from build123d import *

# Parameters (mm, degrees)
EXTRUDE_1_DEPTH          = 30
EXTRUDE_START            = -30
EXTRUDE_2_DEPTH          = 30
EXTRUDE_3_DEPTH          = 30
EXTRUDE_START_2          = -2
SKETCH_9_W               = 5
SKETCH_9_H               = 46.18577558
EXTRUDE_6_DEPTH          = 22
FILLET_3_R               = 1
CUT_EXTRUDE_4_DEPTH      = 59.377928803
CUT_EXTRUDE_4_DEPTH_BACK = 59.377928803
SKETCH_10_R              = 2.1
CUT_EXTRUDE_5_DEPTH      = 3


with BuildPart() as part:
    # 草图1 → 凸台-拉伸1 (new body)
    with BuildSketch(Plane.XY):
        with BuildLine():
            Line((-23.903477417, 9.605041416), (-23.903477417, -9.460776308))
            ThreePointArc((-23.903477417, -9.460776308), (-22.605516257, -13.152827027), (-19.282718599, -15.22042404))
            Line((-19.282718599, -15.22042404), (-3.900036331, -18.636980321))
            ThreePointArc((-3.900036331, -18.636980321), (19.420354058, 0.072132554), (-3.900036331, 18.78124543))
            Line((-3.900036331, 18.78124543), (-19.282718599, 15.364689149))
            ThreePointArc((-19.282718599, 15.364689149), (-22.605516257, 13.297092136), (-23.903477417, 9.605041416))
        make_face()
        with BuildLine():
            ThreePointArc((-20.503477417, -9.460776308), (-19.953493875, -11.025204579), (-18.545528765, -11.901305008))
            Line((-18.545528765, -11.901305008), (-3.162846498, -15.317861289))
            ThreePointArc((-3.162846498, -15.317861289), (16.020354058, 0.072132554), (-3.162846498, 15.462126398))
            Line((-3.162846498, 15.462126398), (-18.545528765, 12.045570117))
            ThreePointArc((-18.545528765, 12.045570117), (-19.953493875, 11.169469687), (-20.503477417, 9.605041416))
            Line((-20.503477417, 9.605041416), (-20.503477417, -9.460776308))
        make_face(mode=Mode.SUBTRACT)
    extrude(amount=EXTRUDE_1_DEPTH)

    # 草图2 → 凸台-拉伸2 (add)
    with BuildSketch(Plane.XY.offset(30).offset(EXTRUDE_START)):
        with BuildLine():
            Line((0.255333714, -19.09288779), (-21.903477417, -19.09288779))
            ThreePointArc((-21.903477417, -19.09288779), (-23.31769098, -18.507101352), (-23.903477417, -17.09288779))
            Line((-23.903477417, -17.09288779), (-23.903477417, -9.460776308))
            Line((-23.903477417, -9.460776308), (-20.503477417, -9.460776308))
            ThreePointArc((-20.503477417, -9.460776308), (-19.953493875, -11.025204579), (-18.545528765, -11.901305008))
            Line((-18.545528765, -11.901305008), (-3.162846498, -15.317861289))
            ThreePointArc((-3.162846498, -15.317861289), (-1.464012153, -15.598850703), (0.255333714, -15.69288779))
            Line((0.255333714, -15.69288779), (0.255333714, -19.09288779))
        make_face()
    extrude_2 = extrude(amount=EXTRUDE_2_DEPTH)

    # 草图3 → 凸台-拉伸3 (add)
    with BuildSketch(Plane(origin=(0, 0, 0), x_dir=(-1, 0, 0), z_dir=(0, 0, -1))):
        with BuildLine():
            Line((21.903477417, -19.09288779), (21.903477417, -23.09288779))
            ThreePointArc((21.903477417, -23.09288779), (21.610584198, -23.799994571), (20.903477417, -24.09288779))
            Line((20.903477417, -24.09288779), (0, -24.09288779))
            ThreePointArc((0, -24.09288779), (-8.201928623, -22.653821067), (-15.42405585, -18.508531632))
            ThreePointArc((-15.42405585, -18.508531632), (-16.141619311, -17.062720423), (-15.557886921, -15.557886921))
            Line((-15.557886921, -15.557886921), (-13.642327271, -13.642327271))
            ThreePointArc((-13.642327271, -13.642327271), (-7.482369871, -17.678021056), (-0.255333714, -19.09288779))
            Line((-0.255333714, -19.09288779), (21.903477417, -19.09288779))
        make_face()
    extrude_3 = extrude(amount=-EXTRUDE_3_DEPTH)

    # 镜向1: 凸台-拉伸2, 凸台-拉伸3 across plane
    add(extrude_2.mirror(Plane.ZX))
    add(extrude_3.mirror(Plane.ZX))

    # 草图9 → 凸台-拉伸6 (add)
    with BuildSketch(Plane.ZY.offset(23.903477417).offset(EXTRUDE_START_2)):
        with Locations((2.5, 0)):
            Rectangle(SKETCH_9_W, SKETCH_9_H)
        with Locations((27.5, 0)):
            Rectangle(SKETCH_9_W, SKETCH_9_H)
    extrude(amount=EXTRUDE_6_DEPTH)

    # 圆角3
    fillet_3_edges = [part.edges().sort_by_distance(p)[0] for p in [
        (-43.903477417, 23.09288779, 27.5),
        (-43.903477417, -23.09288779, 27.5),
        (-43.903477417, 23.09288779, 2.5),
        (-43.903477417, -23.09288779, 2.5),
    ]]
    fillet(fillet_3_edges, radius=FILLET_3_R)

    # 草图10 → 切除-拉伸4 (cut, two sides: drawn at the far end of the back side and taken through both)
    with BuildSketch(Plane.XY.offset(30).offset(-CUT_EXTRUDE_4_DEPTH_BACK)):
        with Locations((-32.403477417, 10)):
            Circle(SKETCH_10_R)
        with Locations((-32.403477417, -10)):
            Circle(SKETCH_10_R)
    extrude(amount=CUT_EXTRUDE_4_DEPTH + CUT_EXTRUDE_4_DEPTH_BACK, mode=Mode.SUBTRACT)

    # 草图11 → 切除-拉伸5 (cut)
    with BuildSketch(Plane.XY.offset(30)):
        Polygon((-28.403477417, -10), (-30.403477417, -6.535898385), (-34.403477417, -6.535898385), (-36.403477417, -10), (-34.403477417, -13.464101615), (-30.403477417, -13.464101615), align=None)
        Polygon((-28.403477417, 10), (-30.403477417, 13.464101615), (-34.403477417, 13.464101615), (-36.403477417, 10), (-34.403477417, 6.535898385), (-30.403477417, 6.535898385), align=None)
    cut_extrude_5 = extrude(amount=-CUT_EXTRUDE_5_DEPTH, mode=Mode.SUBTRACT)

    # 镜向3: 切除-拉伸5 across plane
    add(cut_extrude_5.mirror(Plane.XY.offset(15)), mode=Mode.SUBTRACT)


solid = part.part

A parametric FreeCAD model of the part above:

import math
import FreeCAD as App
import Part
import Sketcher
from FreeCAD import Vector
Q = App.Units.Quantity


def edges_at(feature, points):
    """Names of the edges that pass closest to the given points."""
    edges = feature.Shape.Edges
    near = lambda p: min(range(len(edges)), key=lambda i: edges[i].distToShape(Part.Vertex(*p))[0])
    return sorted({f"Edge{near(p) + 1}" for p in points})

doc = App.newDocument("Part")
body = doc.addObject("PartDesign::Body", "Body")

# Sketch on XY plane
sketch1 = body.newObject("Sketcher::SketchObject", "Sketch")
sketch1.AttachmentSupport = (doc.getObject("XY_Plane"), [""])
sketch1.MapMode = "FlatFace"
sketch1.addGeometry(Part.LineSegment(Vector(-23.9, 9.6, 0), Vector(-23.9, -9.5, 0)), False)
sketch1.addGeometry(Part.ArcOfCircle(Part.Circle(Vector(-18, -9.5, 0), Vector(0, 0, 1), 5.9), math.radians(-180), math.radians(-103)), False)
sketch1.addGeometry(Part.LineSegment(Vector(-19.3, -15.2, 0), Vector(-3.9, -18.6, 0)), False)
sketch1.addGeometry(Part.ArcOfCircle(Part.Circle(Vector(0.3, 0.1, 0), Vector(0, 0, 1), 19.2), math.radians(-103), math.radians(103)), False)
sketch1.addGeometry(Part.LineSegment(Vector(-3.9, 18.8, 0), Vector(-19.3, 15.4, 0)), False)
sketch1.addGeometry(Part.ArcOfCircle(Part.Circle(Vector(-18, 9.6, 0), Vector(0, 0, 1), 5.9), math.radians(103), math.radians(180)), False)
sketch1.addGeometry(Part.ArcOfCircle(Part.Circle(Vector(-18, -9.5, 0), Vector(0, 0, 1), 2.5), math.radians(180), math.radians(257)), False)
sketch1.addGeometry(Part.LineSegment(Vector(-20.5, -9.5, 0), Vector(-20.5, 9.6, 0)), False)
sketch1.addGeometry(Part.ArcOfCircle(Part.Circle(Vector(-18, 9.6, 0), Vector(0, 0, 1), 2.5), math.radians(103), math.radians(180)), False)
sketch1.addGeometry(Part.LineSegment(Vector(-18.5, 12, 0), Vector(-3.2, 15.5, 0)), False)
sketch1.addGeometry(Part.ArcOfCircle(Part.Circle(Vector(0.3, 0.1, 0), Vector(0, 0, 1), 15.8), math.radians(-103), math.radians(103)), False)
sketch1.addGeometry(Part.LineSegment(Vector(-3.2, -15.3, 0), Vector(-18.5, -11.9, 0)), False)
sketch1.addConstraint(Sketcher.Constraint("Tangent", 0, 2, 1, 1))
sketch1.addConstraint(Sketcher.Constraint("Tangent", 1, 2, 2, 1))
sketch1.addConstraint(Sketcher.Constraint("Tangent", 2, 2, 3, 1))
sketch1.addConstraint(Sketcher.Constraint("Tangent", 3, 2, 4, 1))
sketch1.addConstraint(Sketcher.Constraint("Tangent", 4, 2, 5, 1))
sketch1.addConstraint(Sketcher.Constraint("Tangent", 5, 2, 0, 1))
sketch1.addConstraint(Sketcher.Constraint("Tangent", 6, 1, 7, 1))
sketch1.addConstraint(Sketcher.Constraint("Tangent", 7, 2, 8, 2))
sketch1.addConstraint(Sketcher.Constraint("Tangent", 8, 1, 9, 1))
sketch1.addConstraint(Sketcher.Constraint("Tangent", 9, 2, 10, 2))
sketch1.addConstraint(Sketcher.Constraint("Tangent", 10, 1, 11, 1))
sketch1.addConstraint(Sketcher.Constraint("Tangent", 11, 2, 6, 2))
sketch1.addConstraint(Sketcher.Constraint("Vertical", 0))
sketch1.addConstraint(Sketcher.Constraint("Vertical", 7))
sketch1.addConstraint(Sketcher.Constraint("Coincident", 6, 3, 1, 3))
sketch1.addConstraint(Sketcher.Constraint("Coincident", 8, 3, 5, 3))
sketch1.addConstraint(Sketcher.Constraint("Coincident", 10, 3, 3, 3))
sketch1.addConstraint(Sketcher.Constraint("Equal", 1, 5))
sketch1.addConstraint(Sketcher.Constraint("Parallel", 4, 9))
sketch1.addConstraint(Sketcher.Constraint("Vertical", 2, 2, 3, 2))
sketch1.addConstraint(Sketcher.Constraint("Radius", 1, 5.9))
sketch1.addConstraint(Sketcher.Constraint("Radius", 6, 2.5))
sketch1.addConstraint(Sketcher.Constraint("Radius", 3, 19.16502))
sketch1.addConstraint(Sketcher.Constraint("Distance", 2, 15.757531))
sketch1.addConstraint(Sketcher.Constraint("DistanceY", 0, 2, 0, 1, 19.065818))
sketch1.addConstraint(Sketcher.Constraint("DistanceY", -1, 1, 5, 3, 9.605041))
sketch1.addConstraint(Sketcher.Constraint("DistanceX", 1, 2, -1, 1, 19.282719))
pad1 = body.newObject("PartDesign::Pad", "Pad")
pad1.Profile = sketch1
pad1.Length = 30

# Sketch on XY plane
sketch2 = body.newObject("Sketcher::SketchObject", "Sketch001")
sketch2.AttachmentSupport = (doc.getObject("XY_Plane"), [""])
sketch2.MapMode = "FlatFace"
sketch2.addGeometry(Part.LineSegment(Vector(-21.9, -19.1, 0), Vector(0.3, -19.1, 0)), False)
sketch2.addGeometry(Part.LineSegment(Vector(0.3, -19.1, 0), Vector(0.3, -15.7, 0)), False)
sketch2.addGeometry(Part.ArcOfCircle(Part.Circle(Vector(0.3, 0.1, 0), Vector(0, 0, 1), 15.8), math.radians(-102.52), math.radians(-90)), False)
sketch2.addGeometry(Part.LineSegment(Vector(-3.2, -15.3, 0), Vector(-18.5, -11.9, 0)), False)
sketch2.addGeometry(Part.ArcOfCircle(Part.Circle(Vector(-18, -9.5, 0), Vector(0, 0, 1), 2.5), math.radians(180), math.radians(257)), False)
sketch2.addGeometry(Part.LineSegment(Vector(-20.5, -9.5, 0), Vector(-23.9, -9.5, 0)), False)
sketch2.addGeometry(Part.LineSegment(Vector(-23.9, -9.5, 0), Vector(-23.9, -17.1, 0)), False)
sketch2.addGeometry(Part.ArcOfCircle(Part.Circle(Vector(-21.9, -17.1, 0), Vector(0, 0, 1), 2), math.radians(180), math.radians(270)), False)
sketch2.addConstraint(Sketcher.Constraint("Coincident", 0, 2, 1, 1))
sketch2.addConstraint(Sketcher.Constraint("Coincident", 1, 2, 2, 2))
sketch2.addConstraint(Sketcher.Constraint("Tangent", 2, 1, 3, 1))
sketch2.addConstraint(Sketcher.Constraint("Tangent", 3, 2, 4, 2))
sketch2.addConstraint(Sketcher.Constraint("Coincident", 4, 1, 5, 1))
sketch2.addConstraint(Sketcher.Constraint("Coincident", 5, 2, 6, 1))
sketch2.addConstraint(Sketcher.Constraint("Tangent", 6, 2, 7, 1))
sketch2.addConstraint(Sketcher.Constraint("Tangent", 7, 2, 0, 1))
sketch2.addConstraint(Sketcher.Constraint("Horizontal", 0))
sketch2.addConstraint(Sketcher.Constraint("Vertical", 1))
sketch2.addConstraint(Sketcher.Constraint("Horizontal", 5))
sketch2.addConstraint(Sketcher.Constraint("Vertical", 6))
sketch2.addConstraint(Sketcher.Constraint("Vertical", 2, 3, 0, 2))
sketch2.addConstraint(Sketcher.Constraint("Equal", 5, 1))
sketch2.addConstraint(Sketcher.Constraint("Radius", 7, 2.0))
sketch2.addConstraint(Sketcher.Constraint("Radius", 4, 2.5))
sketch2.addConstraint(Sketcher.Constraint("DistanceX", 5, 2, 5, 1, 3.4))
sketch2.addConstraint(Sketcher.Constraint("Radius", 2, 15.76502))
sketch2.addConstraint(Sketcher.Constraint("DistanceX", 0, 1, 0, 2, 22.158811))
sketch2.addConstraint(Sketcher.Constraint("DistanceY", 6, 2, 6, 1, 7.632111))
sketch2.addConstraint(Sketcher.Constraint("Distance", 3, 15.757531))
sketch2.addConstraint(Sketcher.Constraint("DistanceY", 2, 1, -1, 1, 15.317861))
sketch2.addConstraint(Sketcher.Constraint("DistanceX", 3, 2, -1, 1, 18.545529))
pad2 = body.newObject("PartDesign::Pad", "Pad001")
pad2.Profile = sketch2
pad2.Length = 30

# Sketch on XY plane
sketch3 = body.newObject("Sketcher::SketchObject", "Sketch002")
sketch3.AttachmentSupport = (doc.getObject("XY_Plane"), [""])
sketch3.MapMode = "FlatFace"
sketch3.addGeometry(Part.LineSegment(Vector(-21.9, -23.1, 0), Vector(-21.9, -19.1, 0)), False)
sketch3.addGeometry(Part.LineSegment(Vector(-21.9, -19.1, 0), Vector(0.3, -19.1, 0)), False)
sketch3.addGeometry(Part.ArcOfCircle(Part.Circle(Vector(0.3, 0.1, 0), Vector(0, 0, 1), 19.2), math.radians(-90), math.radians(-46)), False)
sketch3.addGeometry(Part.LineSegment(Vector(13.6, -13.6, 0), Vector(15.6, -15.6, 0)), False)
sketch3.addGeometry(Part.ArcOfCircle(Part.Circle(Vector(14.1, -17, 0), Vector(0, 0, 1), 2), math.radians(-50), math.radians(45)), False)
sketch3.addGeometry(Part.ArcOfCircle(Part.Circle(Vector(0, 0, 0), Vector(0, 0, 1), 24.1), math.radians(-90), math.radians(-50)), False)
sketch3.addGeometry(Part.LineSegment(Vector(0, -24.1, 0), Vector(-20.9, -24.1, 0)), False)
sketch3.addGeometry(Part.ArcOfCircle(Part.Circle(Vector(-20.9, -23.1, 0), Vector(0, 0, 1), 1), math.radians(-180), math.radians(-90)), False)
sketch3.addConstraint(Sketcher.Constraint("Coincident", 0, 2, 1, 1))
sketch3.addConstraint(Sketcher.Constraint("Tangent", 1, 2, 2, 1))
sketch3.addConstraint(Sketcher.Constraint("Coincident", 2, 2, 3, 1))
sketch3.addConstraint(Sketcher.Constraint("Tangent", 3, 2, 4, 2))
sketch3.addConstraint(Sketcher.Constraint("Tangent", 4, 1, 5, 2))
sketch3.addConstraint(Sketcher.Constraint("Tangent", 5, 1, 6, 1))
sketch3.addConstraint(Sketcher.Constraint("Tangent", 6, 2, 7, 2))
sketch3.addConstraint(Sketcher.Constraint("Tangent", 7, 1, 0, 1))
sketch3.addConstraint(Sketcher.Constraint("Vertical", 0))
sketch3.addConstraint(Sketcher.Constraint("Horizontal", 1))
sketch3.addConstraint(Sketcher.Constraint("Horizontal", 6))
sketch3.addConstraint(Sketcher.Constraint("Coincident", 5, 3, -1, 1))
sketch3.addConstraint(Sketcher.Constraint("Radius", 4, 2.0))
sketch3.addConstraint(Sketcher.Constraint("Radius", 7, 1.0))
sketch3.addConstraint(Sketcher.Constraint("DistanceY", 0, 1, 0, 2, 4.0))
sketch3.addConstraint(Sketcher.Constraint("Angle", 3, Q("-45 deg")))
sketch3.addConstraint(Sketcher.Constraint("Radius", 2, 19.16502))
sketch3.addConstraint(Sketcher.Constraint("Radius", 5, 24.092888))
sketch3.addConstraint(Sketcher.Constraint("DistanceY", 1, 2, 3, 2, 3.535001))
sketch3.addConstraint(Sketcher.Constraint("DistanceX", 1, 1, 1, 2, 22.158811))
sketch3.addConstraint(Sketcher.Constraint("Distance", 3, 2.70901))
pad3 = body.newObject("PartDesign::Pad", "Pad002")
pad3.Profile = sketch3
pad3.Length = 30
doc.recompute()

mirrored = body.newObject("PartDesign::Mirrored", "Mirrored")
mirrored.Originals = [pad2, pad3]
mirrored.MirrorPlane = (doc.getObject("XZ_Plane"), [""])
body.Tip = mirrored

# Sketch on YZ plane
sketch4 = body.newObject("Sketcher::SketchObject", "Sketch003")
sketch4.AttachmentSupport = (doc.getObject("YZ_Plane"), [""])
sketch4.MapMode = "FlatFace"
sketch4.AttachmentOffset = App.Placement(Vector(0, 0, -21.903477), App.Rotation())
sketch4.addGeometry(Part.LineSegment(Vector(23, 0, 0), Vector(-23, 0, 0)), False)
sketch4.addGeometry(Part.LineSegment(Vector(-23, 0, 0), Vector(-23, 5, 0)), False)
sketch4.addGeometry(Part.LineSegment(Vector(-23, 5, 0), Vector(23, 5, 0)), False)
sketch4.addGeometry(Part.LineSegment(Vector(23, 5, 0), Vector(23, 0, 0)), False)
sketch4.addGeometry(Part.LineSegment(Vector(23, 25, 0), Vector(-23, 25, 0)), False)
sketch4.addGeometry(Part.LineSegment(Vector(-23, 25, 0), Vector(-23, 30, 0)), False)
sketch4.addGeometry(Part.LineSegment(Vector(-23, 30, 0), Vector(23, 30, 0)), False)
sketch4.addGeometry(Part.LineSegment(Vector(23, 30, 0), Vector(23, 25, 0)), False)
sketch4.addConstraint(Sketcher.Constraint("Coincident", 0, 2, 1, 1))
sketch4.addConstraint(Sketcher.Constraint("Coincident", 1, 2, 2, 1))
sketch4.addConstraint(Sketcher.Constraint("Coincident", 2, 2, 3, 1))
sketch4.addConstraint(Sketcher.Constraint("Coincident", 3, 2, 0, 1))
sketch4.addConstraint(Sketcher.Constraint("Coincident", 4, 2, 5, 1))
sketch4.addConstraint(Sketcher.Constraint("Coincident", 5, 2, 6, 1))
sketch4.addConstraint(Sketcher.Constraint("Coincident", 6, 2, 7, 1))
sketch4.addConstraint(Sketcher.Constraint("Coincident", 7, 2, 4, 1))
sketch4.addConstraint(Sketcher.Constraint("Horizontal", 0))
sketch4.addConstraint(Sketcher.Constraint("Vertical", 1))
sketch4.addConstraint(Sketcher.Constraint("Horizontal", 2))
sketch4.addConstraint(Sketcher.Constraint("Vertical", 3))
sketch4.addConstraint(Sketcher.Constraint("Horizontal", 4))
sketch4.addConstraint(Sketcher.Constraint("Vertical", 5))
sketch4.addConstraint(Sketcher.Constraint("Horizontal", 6))
sketch4.addConstraint(Sketcher.Constraint("Vertical", 7))
sketch4.addConstraint(Sketcher.Constraint("Symmetric", 0, 2, 3, 2, -1, 1))
sketch4.addConstraint(Sketcher.Constraint("Vertical", 1, 2, 4, 2))
sketch4.addConstraint(Sketcher.Constraint("Vertical", 3, 2, 6, 2))
sketch4.addConstraint(Sketcher.Constraint("Equal", 3, 5))
sketch4.addConstraint(Sketcher.Constraint("DistanceY", 1, 1, 1, 2, 5.0))
sketch4.addConstraint(Sketcher.Constraint("DistanceY", -1, 1, 4, 2, 25.0))
sketch4.addConstraint(Sketcher.Constraint("DistanceX", 0, 2, 0, 1, 46.185776))
pad4 = body.newObject("PartDesign::Pad", "Pad003")
pad4.Profile = sketch4
pad4.Length = 22
pad4.Reversed = True
doc.recompute()

fillet = body.newObject("PartDesign::Fillet", "Fillet")
fillet.Base = (pad4, edges_at(pad4, [
    (-43.903, 23.093, 27.5),
    (-43.903, -23.093, 27.5),
    (-43.903, 23.093, 2.5),
    (-43.903, -23.093, 2.5),
]))
fillet.Radius = 1

# Sketch on XY plane
sketch5 = body.newObject("Sketcher::SketchObject", "Sketch004")
sketch5.AttachmentSupport = (doc.getObject("XY_Plane"), [""])
sketch5.MapMode = "FlatFace"
sketch5.AttachmentOffset = App.Placement(Vector(0, 0, 30), App.Rotation())
sketch5.addGeometry(Part.Circle(Vector(-32.4, 10, 0), Vector(0, 0, 1), 2.1), False)
sketch5.addGeometry(Part.Circle(Vector(-32.4, -10, 0), Vector(0, 0, 1), 2.1), False)
sketch5.addConstraint(Sketcher.Constraint("Equal", 0, 1))
sketch5.addConstraint(Sketcher.Constraint("Symmetric", 0, 3, 1, 3, -1))
sketch5.addConstraint(Sketcher.Constraint("Diameter", 0, 4.2))
sketch5.addConstraint(Sketcher.Constraint("DistanceY", -1, 1, 0, 3, 10.0))
sketch5.addConstraint(Sketcher.Constraint("DistanceX", 0, 3, -1, 1, 32.403477))
pocket1 = body.newObject("PartDesign::Pocket", "Pocket")
pocket1.Profile = sketch5
pocket1.Type = "ThroughAll"
pocket1.Midplane = True

# Sketch on XY plane
sketch6 = body.newObject("Sketcher::SketchObject", "Sketch005")
sketch6.AttachmentSupport = (doc.getObject("XY_Plane"), [""])
sketch6.MapMode = "FlatFace"
sketch6.AttachmentOffset = App.Placement(Vector(0, 0, 30), App.Rotation())
sketch6.addGeometry(Part.LineSegment(Vector(-28.4, -10, 0), Vector(-30.4, -6.5, 0)), False)
sketch6.addGeometry(Part.LineSegment(Vector(-30.4, -6.5, 0), Vector(-34.4, -6.5, 0)), False)
sketch6.addGeometry(Part.LineSegment(Vector(-34.4, -6.5, 0), Vector(-36.4, -10, 0)), False)
sketch6.addGeometry(Part.LineSegment(Vector(-36.4, -10, 0), Vector(-34.4, -13.5, 0)), False)
sketch6.addGeometry(Part.LineSegment(Vector(-34.4, -13.5, 0), Vector(-30.4, -13.5, 0)), False)
sketch6.addGeometry(Part.LineSegment(Vector(-30.4, -13.5, 0), Vector(-28.4, -10, 0)), False)
sketch6.addGeometry(Part.LineSegment(Vector(-28.4, 10, 0), Vector(-30.4, 13.5, 0)), False)
sketch6.addGeometry(Part.LineSegment(Vector(-30.4, 13.5, 0), Vector(-34.4, 13.5, 0)), False)
sketch6.addGeometry(Part.LineSegment(Vector(-34.4, 13.5, 0), Vector(-36.4, 10, 0)), False)
sketch6.addGeometry(Part.LineSegment(Vector(-36.4, 10, 0), Vector(-34.4, 6.5, 0)), False)
sketch6.addGeometry(Part.LineSegment(Vector(-34.4, 6.5, 0), Vector(-30.4, 6.5, 0)), False)
sketch6.addGeometry(Part.LineSegment(Vector(-30.4, 6.5, 0), Vector(-28.4, 10, 0)), False)
sketch6.addConstraint(Sketcher.Constraint("Coincident", 0, 2, 1, 1))
sketch6.addConstraint(Sketcher.Constraint("Coincident", 1, 2, 2, 1))
sketch6.addConstraint(Sketcher.Constraint("Coincident", 2, 2, 3, 1))
sketch6.addConstraint(Sketcher.Constraint("Coincident", 3, 2, 4, 1))
sketch6.addConstraint(Sketcher.Constraint("Coincident", 4, 2, 5, 1))
sketch6.addConstraint(Sketcher.Constraint("Coincident", 5, 2, 0, 1))
sketch6.addConstraint(Sketcher.Constraint("Coincident", 6, 2, 7, 1))
sketch6.addConstraint(Sketcher.Constraint("Coincident", 7, 2, 8, 1))
sketch6.addConstraint(Sketcher.Constraint("Coincident", 8, 2, 9, 1))
sketch6.addConstraint(Sketcher.Constraint("Coincident", 9, 2, 10, 1))
sketch6.addConstraint(Sketcher.Constraint("Coincident", 10, 2, 11, 1))
sketch6.addConstraint(Sketcher.Constraint("Coincident", 11, 2, 6, 1))
sketch6.addConstraint(Sketcher.Constraint("Horizontal", 1))
sketch6.addConstraint(Sketcher.Constraint("Horizontal", 4))
sketch6.addConstraint(Sketcher.Constraint("Horizontal", 7))
sketch6.addConstraint(Sketcher.Constraint("Horizontal", 10))
sketch6.addConstraint(Sketcher.Constraint("Symmetric", 4, 2, 6, 2, -1))
sketch6.addConstraint(Sketcher.Constraint("Symmetric", 2, 2, 8, 2, -1))
sketch6.addConstraint(Sketcher.Constraint("Symmetric", 1, 2, 9, 2, -1))
sketch6.addConstraint(Sketcher.Constraint("Symmetric", 5, 2, 11, 2, -1))
sketch6.addConstraint(Sketcher.Constraint("Parallel", 0, 3))
sketch6.addConstraint(Sketcher.Constraint("Parallel", 2, 5))
sketch6.addConstraint(Sketcher.Constraint("Parallel", 3, 6))
sketch6.addConstraint(Sketcher.Constraint("Parallel", 5, 8))
sketch6.addConstraint(Sketcher.Constraint("Parallel", 8, 11))
sketch6.addConstraint(Sketcher.Constraint("Horizontal", 2, 2, 5, 2))
sketch6.addConstraint(Sketcher.Constraint("Vertical", 1, 2, 3, 2))
sketch6.addConstraint(Sketcher.Constraint("DistanceX", 1, 2, 1, 1, 4.0))
sketch6.addConstraint(Sketcher.Constraint("Angle", 0, Q("120 deg")))
sketch6.addConstraint(Sketcher.Constraint("Distance", 0, 4.0))
sketch6.addConstraint(Sketcher.Constraint("DistanceY", 2, 2, -1, 1, 10.0))
sketch6.addConstraint(Sketcher.Constraint("DistanceX", 0, 2, -1, 1, 30.403477))
pocket2 = body.newObject("PartDesign::Pocket", "Pocket001")
pocket2.Profile = sketch6
pocket2.Length = 3
doc.recompute()

datumplane = body.newObject("PartDesign::Plane", "DatumPlane")
datumplane.AttachmentSupport = (doc.getObject("XY_Plane"), [""])
datumplane.MapMode = "FlatFace"
datumplane.AttachmentOffset = App.Placement(Vector(0, 0, 15), App.Rotation())
mirrored2 = body.newObject("PartDesign::Mirrored", "Mirrored001")
mirrored2.Originals = [pocket2]
mirrored2.MirrorPlane = (datumplane, [""])
body.Tip = mirrored2

doc.recompute()
